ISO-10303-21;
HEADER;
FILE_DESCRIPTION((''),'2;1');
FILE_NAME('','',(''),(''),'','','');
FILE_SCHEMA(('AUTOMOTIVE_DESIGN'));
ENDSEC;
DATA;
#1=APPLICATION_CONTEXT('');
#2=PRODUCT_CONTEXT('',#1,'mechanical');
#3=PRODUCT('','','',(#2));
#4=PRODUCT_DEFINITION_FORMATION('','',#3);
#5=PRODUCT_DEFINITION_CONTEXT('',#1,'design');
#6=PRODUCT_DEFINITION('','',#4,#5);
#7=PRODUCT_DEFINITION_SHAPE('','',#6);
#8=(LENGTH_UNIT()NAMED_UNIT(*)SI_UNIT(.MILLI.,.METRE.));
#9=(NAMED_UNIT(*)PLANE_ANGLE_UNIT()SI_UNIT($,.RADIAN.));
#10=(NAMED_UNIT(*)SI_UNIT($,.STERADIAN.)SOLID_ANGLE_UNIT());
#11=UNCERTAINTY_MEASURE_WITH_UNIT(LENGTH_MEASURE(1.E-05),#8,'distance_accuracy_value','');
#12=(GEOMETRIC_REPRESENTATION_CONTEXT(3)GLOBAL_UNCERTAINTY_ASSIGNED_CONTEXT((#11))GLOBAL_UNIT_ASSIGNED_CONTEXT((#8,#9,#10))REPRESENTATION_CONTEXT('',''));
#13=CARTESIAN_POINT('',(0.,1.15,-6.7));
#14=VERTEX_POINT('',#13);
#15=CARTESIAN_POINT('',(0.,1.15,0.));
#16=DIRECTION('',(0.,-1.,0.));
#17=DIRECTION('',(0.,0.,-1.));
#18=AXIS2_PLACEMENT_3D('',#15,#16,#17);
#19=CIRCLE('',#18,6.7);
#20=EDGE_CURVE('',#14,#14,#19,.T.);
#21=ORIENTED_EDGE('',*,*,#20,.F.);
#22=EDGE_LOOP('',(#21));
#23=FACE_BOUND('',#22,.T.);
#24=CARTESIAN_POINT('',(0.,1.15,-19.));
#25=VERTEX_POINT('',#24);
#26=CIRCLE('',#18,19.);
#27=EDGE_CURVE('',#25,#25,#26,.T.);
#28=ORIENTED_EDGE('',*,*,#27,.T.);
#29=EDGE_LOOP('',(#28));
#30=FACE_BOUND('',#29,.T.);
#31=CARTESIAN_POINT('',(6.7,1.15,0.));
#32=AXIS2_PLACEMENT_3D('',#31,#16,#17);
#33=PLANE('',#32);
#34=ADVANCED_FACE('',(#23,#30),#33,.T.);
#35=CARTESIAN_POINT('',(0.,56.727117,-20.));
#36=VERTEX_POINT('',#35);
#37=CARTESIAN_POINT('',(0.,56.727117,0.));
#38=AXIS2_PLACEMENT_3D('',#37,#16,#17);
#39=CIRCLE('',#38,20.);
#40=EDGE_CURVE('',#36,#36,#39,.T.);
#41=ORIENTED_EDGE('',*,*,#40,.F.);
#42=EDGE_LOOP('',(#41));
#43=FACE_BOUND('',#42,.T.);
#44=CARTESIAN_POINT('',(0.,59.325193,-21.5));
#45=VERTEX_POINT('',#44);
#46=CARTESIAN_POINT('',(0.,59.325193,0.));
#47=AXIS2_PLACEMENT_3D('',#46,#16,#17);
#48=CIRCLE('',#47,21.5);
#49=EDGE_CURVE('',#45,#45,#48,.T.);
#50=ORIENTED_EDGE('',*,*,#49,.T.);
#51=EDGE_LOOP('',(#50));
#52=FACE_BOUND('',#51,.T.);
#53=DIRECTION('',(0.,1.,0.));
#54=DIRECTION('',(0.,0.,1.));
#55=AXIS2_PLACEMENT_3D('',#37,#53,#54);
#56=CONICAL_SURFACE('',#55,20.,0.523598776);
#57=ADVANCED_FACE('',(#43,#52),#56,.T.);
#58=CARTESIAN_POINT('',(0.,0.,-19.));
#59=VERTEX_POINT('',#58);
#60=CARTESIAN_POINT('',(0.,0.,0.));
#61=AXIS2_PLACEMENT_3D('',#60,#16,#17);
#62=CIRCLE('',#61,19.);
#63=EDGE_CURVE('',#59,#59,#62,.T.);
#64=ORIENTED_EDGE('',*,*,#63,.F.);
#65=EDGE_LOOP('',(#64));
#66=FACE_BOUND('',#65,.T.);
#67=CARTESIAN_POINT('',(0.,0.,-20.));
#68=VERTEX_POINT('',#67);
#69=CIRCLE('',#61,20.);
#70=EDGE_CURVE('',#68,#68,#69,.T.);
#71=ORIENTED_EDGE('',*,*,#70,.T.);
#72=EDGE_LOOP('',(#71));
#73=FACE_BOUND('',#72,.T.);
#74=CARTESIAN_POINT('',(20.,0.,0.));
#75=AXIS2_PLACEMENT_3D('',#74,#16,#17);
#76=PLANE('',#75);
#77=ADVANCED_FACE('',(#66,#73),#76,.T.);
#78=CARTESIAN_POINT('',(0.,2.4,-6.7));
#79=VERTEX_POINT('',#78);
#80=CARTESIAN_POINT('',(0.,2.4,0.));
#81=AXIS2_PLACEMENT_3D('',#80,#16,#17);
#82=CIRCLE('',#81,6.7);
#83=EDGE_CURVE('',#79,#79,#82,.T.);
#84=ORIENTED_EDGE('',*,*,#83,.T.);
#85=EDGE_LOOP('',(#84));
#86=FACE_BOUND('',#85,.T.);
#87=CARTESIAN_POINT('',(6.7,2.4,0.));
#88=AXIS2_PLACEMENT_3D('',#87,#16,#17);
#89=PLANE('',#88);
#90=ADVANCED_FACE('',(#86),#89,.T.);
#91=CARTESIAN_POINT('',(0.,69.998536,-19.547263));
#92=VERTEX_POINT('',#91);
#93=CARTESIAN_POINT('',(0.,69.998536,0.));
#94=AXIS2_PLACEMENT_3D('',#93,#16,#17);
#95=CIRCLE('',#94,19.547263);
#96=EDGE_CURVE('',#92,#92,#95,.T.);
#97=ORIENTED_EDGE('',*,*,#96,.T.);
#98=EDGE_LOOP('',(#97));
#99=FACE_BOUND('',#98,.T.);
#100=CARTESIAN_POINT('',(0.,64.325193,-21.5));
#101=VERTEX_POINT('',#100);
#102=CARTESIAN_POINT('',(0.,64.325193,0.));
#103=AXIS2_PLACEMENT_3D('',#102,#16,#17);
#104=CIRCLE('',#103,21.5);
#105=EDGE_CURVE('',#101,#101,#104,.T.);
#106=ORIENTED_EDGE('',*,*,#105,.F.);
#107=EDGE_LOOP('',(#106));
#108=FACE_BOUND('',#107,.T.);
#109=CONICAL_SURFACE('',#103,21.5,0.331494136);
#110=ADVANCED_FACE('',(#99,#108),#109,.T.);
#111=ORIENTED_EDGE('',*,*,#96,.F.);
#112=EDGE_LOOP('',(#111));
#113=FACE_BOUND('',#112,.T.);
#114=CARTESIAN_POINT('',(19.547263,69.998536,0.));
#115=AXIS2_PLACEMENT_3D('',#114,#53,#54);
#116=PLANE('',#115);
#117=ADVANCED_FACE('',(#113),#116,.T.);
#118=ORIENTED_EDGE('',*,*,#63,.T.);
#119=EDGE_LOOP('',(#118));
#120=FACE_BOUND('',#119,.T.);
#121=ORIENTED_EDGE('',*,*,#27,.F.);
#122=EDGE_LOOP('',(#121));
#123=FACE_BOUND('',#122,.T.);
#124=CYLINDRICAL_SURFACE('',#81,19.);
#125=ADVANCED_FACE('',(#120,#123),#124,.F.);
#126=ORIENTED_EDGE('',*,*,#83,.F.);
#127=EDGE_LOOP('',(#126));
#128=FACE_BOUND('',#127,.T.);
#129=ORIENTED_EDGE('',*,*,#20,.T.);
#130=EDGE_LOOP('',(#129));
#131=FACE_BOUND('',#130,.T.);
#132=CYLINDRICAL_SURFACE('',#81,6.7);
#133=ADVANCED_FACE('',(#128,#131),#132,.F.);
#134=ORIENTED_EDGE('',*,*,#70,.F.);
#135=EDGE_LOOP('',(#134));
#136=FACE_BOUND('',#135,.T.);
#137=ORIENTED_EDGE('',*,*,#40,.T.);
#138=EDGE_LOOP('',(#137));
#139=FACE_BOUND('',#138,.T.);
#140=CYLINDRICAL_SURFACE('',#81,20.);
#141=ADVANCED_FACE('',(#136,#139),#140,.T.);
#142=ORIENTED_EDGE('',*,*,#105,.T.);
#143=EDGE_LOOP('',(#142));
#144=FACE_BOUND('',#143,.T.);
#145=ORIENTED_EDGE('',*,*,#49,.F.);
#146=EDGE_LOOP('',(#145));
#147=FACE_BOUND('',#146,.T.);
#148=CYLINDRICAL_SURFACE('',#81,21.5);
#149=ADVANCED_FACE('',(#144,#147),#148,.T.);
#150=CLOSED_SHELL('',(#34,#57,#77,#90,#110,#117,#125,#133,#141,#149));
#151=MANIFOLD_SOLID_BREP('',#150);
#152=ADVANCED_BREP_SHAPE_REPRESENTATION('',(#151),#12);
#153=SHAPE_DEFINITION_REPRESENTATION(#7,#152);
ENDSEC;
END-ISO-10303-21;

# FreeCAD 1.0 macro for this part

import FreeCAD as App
import Part
import Sketcher
Q = App.Units.Quantity


def add_polygon(sketch, points):
    """Adds a closed chain of lines whose ends are joined by coincident constraints."""
    first, n = sketch.GeometryCount, len(points)
    for a, b in zip(points, points[1:] + points[:1]):
        sketch.addGeometry(Part.LineSegment(App.Vector(*a, 0), App.Vector(*b, 0)), False)
    for i in range(n):
        sketch.addConstraint(Sketcher.Constraint("Coincident", first + i, 2, first + (i + 1) % n, 1))

doc = App.newDocument("Part")
body = doc.addObject("PartDesign::Body", "Body")

# Sketch on XY plane
sketch1 = body.newObject("Sketcher::SketchObject", "Sketch")
sketch1.AttachmentSupport = (doc.getObject("XY_Plane"), [""])
sketch1.MapMode = "FlatFace"
add_polygon(sketch1, [(20, 0), (20, 56.7), (21.5, 59.3), (21.5, 64.3), (19.5, 70), (0, 70), (0, 2.4), (6.7, 2.4), (6.7, 1.1), (19, 1.1), (19, 0)])  # lines 0-10
sketch1.addConstraint([
    Sketcher.Constraint("Vertical", 0),
    Sketcher.Constraint("Vertical", 2),
    Sketcher.Constraint("Horizontal", 4),
    Sketcher.Constraint("Vertical", 5),
    Sketcher.Constraint("Horizontal", 6),
    Sketcher.Constraint("Vertical", 7),
    Sketcher.Constraint("Horizontal", 8),
    Sketcher.Constraint("Vertical", 9),
    Sketcher.Constraint("Horizontal", 10),
    Sketcher.Constraint("PointOnObject", 4, 2, -2),
    Sketcher.Constraint("PointOnObject", 9, 2, -1),
    Sketcher.Constraint("DistanceX", 10, 1, 10, 2, Q("1 mm")),
    Sketcher.Constraint("DistanceY", 2, 1, 2, 2, Q("5 mm")),
    Sketcher.Constraint("Angle", 1, Q("60 deg")),
    Sketcher.Constraint("Distance", 1, Q("3 mm")),
    Sketcher.Constraint("Distance", 3, Q("6 mm")),
    Sketcher.Constraint("DistanceX", 6, 1, 6, 2, Q("6.7 mm")),
    Sketcher.Constraint("DistanceX", 8, 1, 8, 2, Q("12.3 mm")),
    Sketcher.Constraint("DistanceY", 7, 2, 7, 1, Q("1.25 mm")),
    Sketcher.Constraint("DistanceY", 9, 2, 9, 1, Q("1.15 mm")),
    Sketcher.Constraint("DistanceX", 4, 2, 4, 1, Q("19.547263 mm")),
    Sketcher.Constraint("DistanceY", 0, 1, 0, 2, Q("56.727117 mm")),
])
revolution = body.newObject("PartDesign::Revolution", "Revolution")
revolution.Profile = sketch1
revolution.ReferenceAxis = (sketch1, ["V_Axis"])
revolution.Angle = 360

doc.recompute()
